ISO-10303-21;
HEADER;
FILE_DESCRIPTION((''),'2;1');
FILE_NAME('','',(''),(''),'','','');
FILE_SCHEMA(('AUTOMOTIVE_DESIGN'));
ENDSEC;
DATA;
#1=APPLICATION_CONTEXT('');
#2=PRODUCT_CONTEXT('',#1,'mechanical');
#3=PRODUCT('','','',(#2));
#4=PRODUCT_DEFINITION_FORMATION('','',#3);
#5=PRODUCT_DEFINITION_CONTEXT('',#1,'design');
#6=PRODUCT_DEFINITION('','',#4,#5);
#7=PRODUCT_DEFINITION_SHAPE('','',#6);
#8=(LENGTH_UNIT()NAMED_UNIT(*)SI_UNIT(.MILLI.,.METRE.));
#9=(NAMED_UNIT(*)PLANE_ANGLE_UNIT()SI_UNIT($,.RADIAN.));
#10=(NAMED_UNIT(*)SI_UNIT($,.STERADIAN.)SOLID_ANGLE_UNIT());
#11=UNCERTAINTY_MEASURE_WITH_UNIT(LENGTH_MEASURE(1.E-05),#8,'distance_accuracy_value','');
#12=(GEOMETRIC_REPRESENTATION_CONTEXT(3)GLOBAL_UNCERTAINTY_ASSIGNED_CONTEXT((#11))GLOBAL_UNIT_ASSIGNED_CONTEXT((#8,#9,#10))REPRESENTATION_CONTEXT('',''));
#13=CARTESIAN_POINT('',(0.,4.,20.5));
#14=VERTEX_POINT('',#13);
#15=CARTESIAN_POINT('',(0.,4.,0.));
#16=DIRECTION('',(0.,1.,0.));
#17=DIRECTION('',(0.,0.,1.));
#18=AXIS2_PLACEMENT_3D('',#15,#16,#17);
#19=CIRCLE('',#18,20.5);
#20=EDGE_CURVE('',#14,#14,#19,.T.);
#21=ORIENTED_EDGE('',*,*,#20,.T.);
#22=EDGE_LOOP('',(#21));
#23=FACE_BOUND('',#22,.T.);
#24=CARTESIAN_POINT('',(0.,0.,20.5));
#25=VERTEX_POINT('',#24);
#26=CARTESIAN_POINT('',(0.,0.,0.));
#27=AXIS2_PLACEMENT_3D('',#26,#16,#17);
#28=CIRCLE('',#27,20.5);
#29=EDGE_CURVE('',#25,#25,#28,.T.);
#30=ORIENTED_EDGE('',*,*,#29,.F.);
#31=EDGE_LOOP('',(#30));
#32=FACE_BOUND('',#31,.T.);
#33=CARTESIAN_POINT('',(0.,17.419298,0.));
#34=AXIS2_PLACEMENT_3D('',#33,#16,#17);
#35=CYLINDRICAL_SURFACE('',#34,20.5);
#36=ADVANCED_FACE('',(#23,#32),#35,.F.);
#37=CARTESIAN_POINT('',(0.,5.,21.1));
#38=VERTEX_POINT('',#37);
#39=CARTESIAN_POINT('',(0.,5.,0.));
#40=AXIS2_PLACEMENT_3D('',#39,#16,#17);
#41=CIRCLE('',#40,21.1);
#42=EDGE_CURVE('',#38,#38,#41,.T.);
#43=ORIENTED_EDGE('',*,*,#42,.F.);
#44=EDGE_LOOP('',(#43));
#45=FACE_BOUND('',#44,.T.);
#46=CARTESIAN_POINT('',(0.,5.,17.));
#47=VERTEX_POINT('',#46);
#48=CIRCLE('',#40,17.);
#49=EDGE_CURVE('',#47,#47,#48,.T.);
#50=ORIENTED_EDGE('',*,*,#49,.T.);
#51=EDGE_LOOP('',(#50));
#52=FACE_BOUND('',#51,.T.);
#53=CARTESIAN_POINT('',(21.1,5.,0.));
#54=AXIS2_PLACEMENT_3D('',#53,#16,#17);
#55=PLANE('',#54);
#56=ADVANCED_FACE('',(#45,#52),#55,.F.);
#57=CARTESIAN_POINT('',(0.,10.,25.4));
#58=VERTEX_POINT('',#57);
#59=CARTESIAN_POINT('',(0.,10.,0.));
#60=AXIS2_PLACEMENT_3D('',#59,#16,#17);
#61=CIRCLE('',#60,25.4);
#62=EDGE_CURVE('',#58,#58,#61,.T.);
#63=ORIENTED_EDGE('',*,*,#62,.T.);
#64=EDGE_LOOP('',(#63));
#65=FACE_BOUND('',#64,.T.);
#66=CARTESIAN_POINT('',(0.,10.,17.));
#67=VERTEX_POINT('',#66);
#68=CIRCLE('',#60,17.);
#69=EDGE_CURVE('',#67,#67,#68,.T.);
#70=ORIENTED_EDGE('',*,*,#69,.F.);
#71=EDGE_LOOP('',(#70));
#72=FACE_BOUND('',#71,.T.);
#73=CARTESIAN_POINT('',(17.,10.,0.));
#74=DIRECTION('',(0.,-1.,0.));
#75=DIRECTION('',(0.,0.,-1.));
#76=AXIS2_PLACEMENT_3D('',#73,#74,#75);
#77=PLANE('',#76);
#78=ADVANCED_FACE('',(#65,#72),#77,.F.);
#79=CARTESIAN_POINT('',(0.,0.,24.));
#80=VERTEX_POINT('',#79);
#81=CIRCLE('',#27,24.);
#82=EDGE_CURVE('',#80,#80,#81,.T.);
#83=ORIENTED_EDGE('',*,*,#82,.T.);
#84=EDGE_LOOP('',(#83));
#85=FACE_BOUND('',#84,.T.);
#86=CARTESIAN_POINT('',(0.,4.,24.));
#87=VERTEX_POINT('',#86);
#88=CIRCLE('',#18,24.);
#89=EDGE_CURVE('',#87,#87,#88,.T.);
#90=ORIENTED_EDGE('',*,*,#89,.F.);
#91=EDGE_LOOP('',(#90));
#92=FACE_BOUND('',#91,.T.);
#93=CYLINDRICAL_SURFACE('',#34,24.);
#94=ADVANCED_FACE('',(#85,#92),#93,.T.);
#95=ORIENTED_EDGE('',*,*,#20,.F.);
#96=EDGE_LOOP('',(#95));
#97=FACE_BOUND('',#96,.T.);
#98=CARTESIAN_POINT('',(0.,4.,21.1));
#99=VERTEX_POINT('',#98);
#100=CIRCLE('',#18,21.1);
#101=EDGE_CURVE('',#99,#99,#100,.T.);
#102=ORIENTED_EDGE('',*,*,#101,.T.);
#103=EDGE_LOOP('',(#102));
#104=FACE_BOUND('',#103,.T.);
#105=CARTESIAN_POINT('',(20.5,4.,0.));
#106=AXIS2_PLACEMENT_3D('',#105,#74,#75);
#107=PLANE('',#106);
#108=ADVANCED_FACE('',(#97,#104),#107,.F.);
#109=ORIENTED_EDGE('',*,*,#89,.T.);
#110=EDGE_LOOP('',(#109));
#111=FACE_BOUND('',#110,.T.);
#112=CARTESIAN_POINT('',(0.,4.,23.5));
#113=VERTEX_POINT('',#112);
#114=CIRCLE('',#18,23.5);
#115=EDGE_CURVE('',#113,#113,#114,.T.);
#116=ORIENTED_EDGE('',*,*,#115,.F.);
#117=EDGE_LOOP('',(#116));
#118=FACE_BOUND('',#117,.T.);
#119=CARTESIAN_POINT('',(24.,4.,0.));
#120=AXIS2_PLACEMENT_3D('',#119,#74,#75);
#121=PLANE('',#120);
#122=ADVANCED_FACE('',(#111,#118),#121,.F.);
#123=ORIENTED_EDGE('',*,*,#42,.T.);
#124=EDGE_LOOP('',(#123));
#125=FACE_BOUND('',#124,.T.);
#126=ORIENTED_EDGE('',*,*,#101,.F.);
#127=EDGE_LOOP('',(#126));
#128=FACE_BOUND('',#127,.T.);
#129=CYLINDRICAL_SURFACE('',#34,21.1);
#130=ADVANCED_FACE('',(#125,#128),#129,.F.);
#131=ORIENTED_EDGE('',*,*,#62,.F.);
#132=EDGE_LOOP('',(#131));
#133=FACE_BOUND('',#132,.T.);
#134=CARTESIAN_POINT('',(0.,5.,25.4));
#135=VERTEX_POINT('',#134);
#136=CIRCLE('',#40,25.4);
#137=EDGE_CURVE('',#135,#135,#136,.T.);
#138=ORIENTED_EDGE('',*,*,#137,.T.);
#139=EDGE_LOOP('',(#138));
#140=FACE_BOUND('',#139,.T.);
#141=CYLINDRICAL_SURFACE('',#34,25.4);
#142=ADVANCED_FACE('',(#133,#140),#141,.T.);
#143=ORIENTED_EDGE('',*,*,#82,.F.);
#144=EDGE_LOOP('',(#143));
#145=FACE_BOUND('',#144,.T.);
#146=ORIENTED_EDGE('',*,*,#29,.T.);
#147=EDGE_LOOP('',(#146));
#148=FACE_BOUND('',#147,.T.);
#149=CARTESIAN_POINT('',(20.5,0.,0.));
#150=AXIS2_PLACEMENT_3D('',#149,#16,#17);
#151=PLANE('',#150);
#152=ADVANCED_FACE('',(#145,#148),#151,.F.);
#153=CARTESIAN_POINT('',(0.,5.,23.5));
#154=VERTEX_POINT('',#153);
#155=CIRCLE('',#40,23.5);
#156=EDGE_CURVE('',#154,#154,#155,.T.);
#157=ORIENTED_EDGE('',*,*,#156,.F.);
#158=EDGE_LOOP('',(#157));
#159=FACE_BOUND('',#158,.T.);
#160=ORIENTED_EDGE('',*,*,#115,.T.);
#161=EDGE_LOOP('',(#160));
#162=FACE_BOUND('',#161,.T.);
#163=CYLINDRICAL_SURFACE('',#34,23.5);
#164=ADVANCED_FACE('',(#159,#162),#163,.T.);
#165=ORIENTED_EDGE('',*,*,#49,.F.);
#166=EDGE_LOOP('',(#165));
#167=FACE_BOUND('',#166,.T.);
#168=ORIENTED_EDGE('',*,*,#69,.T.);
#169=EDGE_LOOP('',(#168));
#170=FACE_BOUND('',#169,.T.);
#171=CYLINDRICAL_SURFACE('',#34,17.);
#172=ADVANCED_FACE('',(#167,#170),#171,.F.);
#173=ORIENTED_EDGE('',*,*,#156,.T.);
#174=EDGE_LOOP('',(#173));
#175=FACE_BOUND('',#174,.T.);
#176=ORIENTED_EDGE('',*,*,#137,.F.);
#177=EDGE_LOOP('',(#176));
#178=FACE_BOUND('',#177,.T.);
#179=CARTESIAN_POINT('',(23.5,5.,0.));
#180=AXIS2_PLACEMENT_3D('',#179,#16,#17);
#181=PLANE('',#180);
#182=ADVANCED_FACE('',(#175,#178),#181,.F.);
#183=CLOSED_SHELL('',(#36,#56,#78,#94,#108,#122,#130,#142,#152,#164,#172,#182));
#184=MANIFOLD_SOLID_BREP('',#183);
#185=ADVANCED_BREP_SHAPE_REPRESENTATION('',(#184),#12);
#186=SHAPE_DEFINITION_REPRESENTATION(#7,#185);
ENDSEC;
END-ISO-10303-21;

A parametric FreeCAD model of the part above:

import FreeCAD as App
import Part
import Sketcher

V = App.Vector


def add_polygon(sketch, points):
    """Adds a closed chain of lines whose ends are joined by coincident constraints."""
    first, n = sketch.GeometryCount, len(points)
    for a, b in zip(points, points[1:] + points[:1]):
        sketch.addGeometry(Part.LineSegment(App.Vector(*a, 0), App.Vector(*b, 0)), False)
    for i in range(n):
        sketch.addConstraint(Sketcher.Constraint("Coincident", first + i, 2, first + (i + 1) % n, 1))

doc = App.newDocument("Part")
body = doc.addObject("PartDesign::Body", "Body")

# Sketch on XY plane
sketch1 = doc.addObject("Sketcher::SketchObject", "Sketch")
body.addObject(sketch1)
sketch1.AttachmentSupport = (doc.XY_Plane, [""])
sketch1.MapMode = "FlatFace"
add_polygon(sketch1, [(20.5, 4), (20.5, 0), (24, 0), (24, 4), (23.5, 4), (23.5, 5), (25.4, 5), (25.4, 10), (17, 10), (17, 5), (21.1, 5), (21.1, 4)])  # lines 0-11
sketch1.addConstraint([
    Sketcher.Constraint("Vertical", 0),
    Sketcher.Constraint("Horizontal", 1),
    Sketcher.Constraint("Vertical", 2),
    Sketcher.Constraint("Horizontal", 3),
    Sketcher.Constraint("Vertical", 4),
    Sketcher.Constraint("Horizontal", 5),
    Sketcher.Constraint("Vertical", 6),
    Sketcher.Constraint("Horizontal", 7),
    Sketcher.Constraint("Vertical", 8),
    Sketcher.Constraint("Horizontal", 9),
    Sketcher.Constraint("Vertical", 10),
    Sketcher.Constraint("Horizontal", 11),
    Sketcher.Constraint("PointOnObject", 0, 2, -1),
    Sketcher.Constraint("Horizontal", 5, 2, 8, 2),
    Sketcher.Constraint("Horizontal", 3, 2, 10, 2),
    Sketcher.Constraint("DistanceY", 0, 2, 0, 1, 4.0),
    Sketcher.Constraint("DistanceY", 4, 1, 4, 2, 1.0),
    Sketcher.Constraint("DistanceY", 6, 1, 6, 2, 5.0),
    Sketcher.Constraint("DistanceX", 1, 1, 1, 2, 3.5),
    Sketcher.Constraint("DistanceX", 3, 2, 3, 1, 0.5),
    Sketcher.Constraint("DistanceX", 5, 1, 5, 2, 1.9),
    Sketcher.Constraint("DistanceX", 7, 2, 7, 1, 8.4),
    Sketcher.Constraint("DistanceX", 9, 1, 9, 2, 4.1),
    Sketcher.Constraint("DistanceX", -1, 1, 1, 2, 24.0),
])
revolution = doc.addObject("PartDesign::Revolution", "Revolution")
body.addObject(revolution)
revolution.Profile = sketch1
revolution.ReferenceAxis = (sketch1, ["V_Axis"])
revolution.Angle = 360

doc.recompute()
